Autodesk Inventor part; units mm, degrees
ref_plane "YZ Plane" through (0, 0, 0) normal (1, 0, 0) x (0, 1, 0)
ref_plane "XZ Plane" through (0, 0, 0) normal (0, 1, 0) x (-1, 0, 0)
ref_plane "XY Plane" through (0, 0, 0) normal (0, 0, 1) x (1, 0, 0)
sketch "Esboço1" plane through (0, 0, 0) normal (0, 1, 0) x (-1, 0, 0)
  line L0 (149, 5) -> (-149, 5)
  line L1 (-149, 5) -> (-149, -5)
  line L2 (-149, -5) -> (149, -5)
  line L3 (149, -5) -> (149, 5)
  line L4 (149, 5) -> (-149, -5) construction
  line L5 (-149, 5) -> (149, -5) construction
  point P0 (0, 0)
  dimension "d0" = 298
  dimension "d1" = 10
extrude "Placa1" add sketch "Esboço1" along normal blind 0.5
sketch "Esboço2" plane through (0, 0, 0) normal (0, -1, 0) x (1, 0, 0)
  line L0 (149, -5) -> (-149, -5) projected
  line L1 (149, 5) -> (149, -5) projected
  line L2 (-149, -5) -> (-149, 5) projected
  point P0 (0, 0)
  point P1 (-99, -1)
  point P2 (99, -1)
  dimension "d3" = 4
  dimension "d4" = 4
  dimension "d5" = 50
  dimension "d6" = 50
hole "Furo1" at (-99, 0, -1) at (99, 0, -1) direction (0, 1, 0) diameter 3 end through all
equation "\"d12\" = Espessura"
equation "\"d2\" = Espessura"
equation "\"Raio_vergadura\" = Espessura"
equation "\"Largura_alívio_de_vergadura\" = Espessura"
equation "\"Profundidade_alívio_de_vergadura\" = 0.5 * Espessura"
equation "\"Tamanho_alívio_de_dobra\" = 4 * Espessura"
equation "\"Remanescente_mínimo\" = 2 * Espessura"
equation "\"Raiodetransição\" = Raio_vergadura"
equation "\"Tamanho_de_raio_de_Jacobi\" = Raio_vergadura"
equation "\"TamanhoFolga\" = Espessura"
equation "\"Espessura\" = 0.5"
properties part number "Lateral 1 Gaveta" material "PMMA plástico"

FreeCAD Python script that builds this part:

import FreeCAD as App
import Part
import Sketcher
from FreeCAD import Vector

doc = App.newDocument("Part")
body = doc.addObject("PartDesign::Body", "Body")

# Sketch on XZ plane
sketch1 = body.newObject("Sketcher::SketchObject", "Sketch")
sketch1.AttachmentSupport = (doc.getObject("XZ_Plane"), [""])
sketch1.MapMode = "FlatFace"
sketch1.addGeometry([
    Part.LineSegment(Vector(-149, -5, 0), Vector(-149, 5, 0)),
    Part.LineSegment(Vector(-149, 5, 0), Vector(149, 5, 0)),
    Part.LineSegment(Vector(149, 5, 0), Vector(149, -5, 0)),
    Part.LineSegment(Vector(149, -5, 0), Vector(-149, -5, 0)),
], False)
sketch1.addConstraint([
    Sketcher.Constraint("Coincident", 0, 2, 1, 1),
    Sketcher.Constraint("Coincident", 1, 2, 2, 1),
    Sketcher.Constraint("Coincident", 2, 2, 3, 1),
    Sketcher.Constraint("Coincident", 3, 2, 0, 1),
    Sketcher.Constraint("Vertical", 0),
    Sketcher.Constraint("Horizontal", 1),
    Sketcher.Constraint("Vertical", 2),
    Sketcher.Constraint("Horizontal", 3),
    Sketcher.Constraint("Symmetric", 0, 2, 2, 2, -1, 1),
    Sketcher.Constraint("DistanceX", 1, 1, 1, 2, 298.0),
    Sketcher.Constraint("DistanceY", 0, 1, 0, 2, 10.0),
])
pad1 = body.newObject("PartDesign::Pad", "Pad")
pad1.Profile = sketch1
pad1.Length = 0.5
pad1.Reversed = True

# Sketch on XZ plane
sketch2 = body.newObject("Sketcher::SketchObject", "Sketch001")
sketch2.AttachmentSupport = (doc.getObject("XZ_Plane"), [""])
sketch2.MapMode = "FlatFace"
sketch2.addGeometry([
    Part.Circle(Vector(-99, -1, 0), Vector(0, 0, 1), 1.5),
    Part.Circle(Vector(99, -1, 0), Vector(0, 0, 1), 1.5),
], False)
sketch2.addConstraint([
    Sketcher.Constraint("Equal", 0, 1),
    Sketcher.Constraint("Symmetric", 0, 3, 1, 3, -2),
    Sketcher.Constraint("Diameter", 0, 3.0),
    Sketcher.Constraint("DistanceX", 0, 3, -1, 1, 99.0),
    Sketcher.Constraint("DistanceY", 0, 3, -1, 1, 1.0),
])
doc.recompute()
hole = body.newObject("PartDesign::Hole", "Hole")
hole.Profile = sketch2
hole.ThreadType = "None"
hole.Diameter = 3
hole.DepthType = "ThroughAll"

doc.recompute()
